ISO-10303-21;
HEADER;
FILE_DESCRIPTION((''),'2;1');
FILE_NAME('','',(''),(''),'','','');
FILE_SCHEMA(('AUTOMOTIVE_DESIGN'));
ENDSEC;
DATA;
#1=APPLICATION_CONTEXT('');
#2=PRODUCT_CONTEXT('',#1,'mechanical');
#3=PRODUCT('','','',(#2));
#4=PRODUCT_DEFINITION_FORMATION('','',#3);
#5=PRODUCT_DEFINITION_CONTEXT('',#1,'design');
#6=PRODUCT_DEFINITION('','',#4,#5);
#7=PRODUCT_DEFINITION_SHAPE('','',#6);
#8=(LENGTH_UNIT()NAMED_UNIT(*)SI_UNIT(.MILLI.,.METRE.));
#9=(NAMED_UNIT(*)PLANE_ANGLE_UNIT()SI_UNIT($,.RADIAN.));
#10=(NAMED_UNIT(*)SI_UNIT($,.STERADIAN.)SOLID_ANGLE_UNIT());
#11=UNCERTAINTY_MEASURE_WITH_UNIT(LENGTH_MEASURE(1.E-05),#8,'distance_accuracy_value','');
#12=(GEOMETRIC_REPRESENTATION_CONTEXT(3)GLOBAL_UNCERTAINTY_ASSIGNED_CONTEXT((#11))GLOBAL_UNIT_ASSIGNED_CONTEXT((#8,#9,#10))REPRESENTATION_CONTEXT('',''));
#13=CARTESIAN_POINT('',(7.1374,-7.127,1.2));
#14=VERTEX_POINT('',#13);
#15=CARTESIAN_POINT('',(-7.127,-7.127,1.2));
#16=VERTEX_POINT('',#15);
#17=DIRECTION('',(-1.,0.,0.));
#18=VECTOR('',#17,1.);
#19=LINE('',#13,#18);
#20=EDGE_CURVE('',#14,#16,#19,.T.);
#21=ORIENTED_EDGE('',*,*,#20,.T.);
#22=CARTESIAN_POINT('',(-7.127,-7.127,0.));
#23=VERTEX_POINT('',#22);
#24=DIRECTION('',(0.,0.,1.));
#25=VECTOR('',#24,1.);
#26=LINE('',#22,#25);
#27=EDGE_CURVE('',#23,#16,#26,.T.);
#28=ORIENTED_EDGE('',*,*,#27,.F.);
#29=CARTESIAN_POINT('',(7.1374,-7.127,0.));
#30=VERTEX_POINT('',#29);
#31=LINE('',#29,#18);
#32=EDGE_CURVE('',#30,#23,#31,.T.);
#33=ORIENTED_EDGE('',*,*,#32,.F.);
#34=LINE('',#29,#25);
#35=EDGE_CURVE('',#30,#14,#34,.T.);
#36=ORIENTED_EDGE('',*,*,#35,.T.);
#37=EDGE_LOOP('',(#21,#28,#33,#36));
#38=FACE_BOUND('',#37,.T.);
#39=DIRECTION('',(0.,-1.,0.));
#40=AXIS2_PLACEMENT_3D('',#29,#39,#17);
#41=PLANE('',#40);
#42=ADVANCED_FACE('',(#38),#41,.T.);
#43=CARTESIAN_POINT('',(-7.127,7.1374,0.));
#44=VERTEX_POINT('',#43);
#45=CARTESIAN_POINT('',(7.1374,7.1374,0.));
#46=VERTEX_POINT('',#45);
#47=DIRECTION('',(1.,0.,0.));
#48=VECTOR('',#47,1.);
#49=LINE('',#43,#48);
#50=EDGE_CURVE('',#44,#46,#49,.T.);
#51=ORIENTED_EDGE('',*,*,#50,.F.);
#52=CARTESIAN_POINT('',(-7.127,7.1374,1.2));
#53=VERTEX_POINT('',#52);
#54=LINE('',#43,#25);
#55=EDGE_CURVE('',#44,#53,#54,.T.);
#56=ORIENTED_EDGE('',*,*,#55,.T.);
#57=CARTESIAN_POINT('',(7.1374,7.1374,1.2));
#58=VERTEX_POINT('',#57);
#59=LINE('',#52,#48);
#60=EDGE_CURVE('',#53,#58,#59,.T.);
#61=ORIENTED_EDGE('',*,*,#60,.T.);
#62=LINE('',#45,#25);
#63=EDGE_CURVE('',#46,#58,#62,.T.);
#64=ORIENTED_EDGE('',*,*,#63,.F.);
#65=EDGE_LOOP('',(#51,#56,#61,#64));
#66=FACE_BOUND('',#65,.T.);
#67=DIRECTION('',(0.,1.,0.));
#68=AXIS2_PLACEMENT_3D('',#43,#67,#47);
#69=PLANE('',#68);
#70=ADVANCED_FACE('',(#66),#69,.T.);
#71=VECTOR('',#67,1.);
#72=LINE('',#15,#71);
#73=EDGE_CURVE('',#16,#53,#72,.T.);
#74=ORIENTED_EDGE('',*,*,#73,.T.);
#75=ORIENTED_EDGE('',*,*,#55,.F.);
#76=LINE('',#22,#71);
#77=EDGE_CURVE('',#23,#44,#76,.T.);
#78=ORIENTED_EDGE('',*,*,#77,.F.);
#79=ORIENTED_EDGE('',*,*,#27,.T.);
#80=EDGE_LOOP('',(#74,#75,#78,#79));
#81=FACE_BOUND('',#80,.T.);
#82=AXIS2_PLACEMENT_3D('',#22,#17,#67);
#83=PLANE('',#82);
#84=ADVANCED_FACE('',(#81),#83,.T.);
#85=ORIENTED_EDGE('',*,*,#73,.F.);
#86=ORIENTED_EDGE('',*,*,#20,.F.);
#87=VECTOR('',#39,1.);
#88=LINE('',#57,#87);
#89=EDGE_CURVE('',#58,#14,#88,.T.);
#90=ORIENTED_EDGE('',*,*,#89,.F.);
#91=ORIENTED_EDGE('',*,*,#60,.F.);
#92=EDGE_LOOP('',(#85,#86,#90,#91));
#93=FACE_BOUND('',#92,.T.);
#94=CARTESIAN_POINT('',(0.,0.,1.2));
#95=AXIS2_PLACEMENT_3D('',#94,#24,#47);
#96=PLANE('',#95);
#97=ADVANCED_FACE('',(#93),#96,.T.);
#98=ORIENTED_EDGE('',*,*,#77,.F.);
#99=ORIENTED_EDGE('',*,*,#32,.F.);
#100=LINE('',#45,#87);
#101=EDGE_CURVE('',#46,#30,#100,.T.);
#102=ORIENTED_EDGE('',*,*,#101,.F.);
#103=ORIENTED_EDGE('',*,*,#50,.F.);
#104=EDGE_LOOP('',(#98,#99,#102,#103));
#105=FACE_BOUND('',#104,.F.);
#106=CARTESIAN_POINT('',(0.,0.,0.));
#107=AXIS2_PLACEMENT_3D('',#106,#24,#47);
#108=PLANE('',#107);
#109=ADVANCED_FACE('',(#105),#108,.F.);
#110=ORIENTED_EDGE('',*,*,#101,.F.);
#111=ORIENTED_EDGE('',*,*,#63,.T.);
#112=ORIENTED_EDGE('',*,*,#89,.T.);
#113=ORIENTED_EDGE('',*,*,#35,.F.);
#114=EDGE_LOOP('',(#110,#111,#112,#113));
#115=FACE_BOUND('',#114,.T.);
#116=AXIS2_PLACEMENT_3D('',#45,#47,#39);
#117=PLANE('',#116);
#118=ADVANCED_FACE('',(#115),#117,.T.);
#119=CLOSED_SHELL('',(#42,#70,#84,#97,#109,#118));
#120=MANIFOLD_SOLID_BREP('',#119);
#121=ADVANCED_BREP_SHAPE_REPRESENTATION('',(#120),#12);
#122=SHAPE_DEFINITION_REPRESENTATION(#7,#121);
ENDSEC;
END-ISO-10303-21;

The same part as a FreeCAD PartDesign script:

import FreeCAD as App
import Part
import Sketcher
from FreeCAD import Vector


def add_polygon(sketch, points):
    """Adds a closed chain of lines whose ends are joined by coincident constraints."""
    first, n = sketch.GeometryCount, len(points)
    for a, b in zip(points, points[1:] + points[:1]):
        sketch.addGeometry(Part.LineSegment(App.Vector(*a, 0), App.Vector(*b, 0)), False)
    for i in range(n):
        sketch.addConstraint(Sketcher.Constraint("Coincident", first + i, 2, first + (i + 1) % n, 1))

doc = App.newDocument("Part")
body = doc.addObject("PartDesign::Body", "Body")

# Sketch on XY plane
sketch1 = body.newObject("Sketcher::SketchObject", "Sketch")
sketch1.AttachmentSupport = (doc.getObject("XY_Plane"), [""])
sketch1.MapMode = "FlatFace"
add_polygon(sketch1, [(7, -7), (7, 7), (-7, 7), (-7, -7)])  # lines 0-3
sketch1.addConstraint(Sketcher.Constraint("Vertical", 0))
sketch1.addConstraint(Sketcher.Constraint("Horizontal", 1))
sketch1.addConstraint(Sketcher.Constraint("Vertical", 2))
sketch1.addConstraint(Sketcher.Constraint("Horizontal", 3))
sketch1.addConstraint(Sketcher.Constraint("Equal", 3, 0))
sketch1.addConstraint(Sketcher.Constraint("DistanceX", 1, 2, 1, 1, 14.2644))
sketch1.addConstraint(Sketcher.Constraint("DistanceX", 1, 2, -1, 1, 7.127))
sketch1.addConstraint(Sketcher.Constraint("DistanceY", 2, 2, -1, 1, 7.127))
pad1 = body.newObject("PartDesign::Pad", "Pad")
pad1.Profile = sketch1
pad1.Length = 1.2

doc.recompute()
